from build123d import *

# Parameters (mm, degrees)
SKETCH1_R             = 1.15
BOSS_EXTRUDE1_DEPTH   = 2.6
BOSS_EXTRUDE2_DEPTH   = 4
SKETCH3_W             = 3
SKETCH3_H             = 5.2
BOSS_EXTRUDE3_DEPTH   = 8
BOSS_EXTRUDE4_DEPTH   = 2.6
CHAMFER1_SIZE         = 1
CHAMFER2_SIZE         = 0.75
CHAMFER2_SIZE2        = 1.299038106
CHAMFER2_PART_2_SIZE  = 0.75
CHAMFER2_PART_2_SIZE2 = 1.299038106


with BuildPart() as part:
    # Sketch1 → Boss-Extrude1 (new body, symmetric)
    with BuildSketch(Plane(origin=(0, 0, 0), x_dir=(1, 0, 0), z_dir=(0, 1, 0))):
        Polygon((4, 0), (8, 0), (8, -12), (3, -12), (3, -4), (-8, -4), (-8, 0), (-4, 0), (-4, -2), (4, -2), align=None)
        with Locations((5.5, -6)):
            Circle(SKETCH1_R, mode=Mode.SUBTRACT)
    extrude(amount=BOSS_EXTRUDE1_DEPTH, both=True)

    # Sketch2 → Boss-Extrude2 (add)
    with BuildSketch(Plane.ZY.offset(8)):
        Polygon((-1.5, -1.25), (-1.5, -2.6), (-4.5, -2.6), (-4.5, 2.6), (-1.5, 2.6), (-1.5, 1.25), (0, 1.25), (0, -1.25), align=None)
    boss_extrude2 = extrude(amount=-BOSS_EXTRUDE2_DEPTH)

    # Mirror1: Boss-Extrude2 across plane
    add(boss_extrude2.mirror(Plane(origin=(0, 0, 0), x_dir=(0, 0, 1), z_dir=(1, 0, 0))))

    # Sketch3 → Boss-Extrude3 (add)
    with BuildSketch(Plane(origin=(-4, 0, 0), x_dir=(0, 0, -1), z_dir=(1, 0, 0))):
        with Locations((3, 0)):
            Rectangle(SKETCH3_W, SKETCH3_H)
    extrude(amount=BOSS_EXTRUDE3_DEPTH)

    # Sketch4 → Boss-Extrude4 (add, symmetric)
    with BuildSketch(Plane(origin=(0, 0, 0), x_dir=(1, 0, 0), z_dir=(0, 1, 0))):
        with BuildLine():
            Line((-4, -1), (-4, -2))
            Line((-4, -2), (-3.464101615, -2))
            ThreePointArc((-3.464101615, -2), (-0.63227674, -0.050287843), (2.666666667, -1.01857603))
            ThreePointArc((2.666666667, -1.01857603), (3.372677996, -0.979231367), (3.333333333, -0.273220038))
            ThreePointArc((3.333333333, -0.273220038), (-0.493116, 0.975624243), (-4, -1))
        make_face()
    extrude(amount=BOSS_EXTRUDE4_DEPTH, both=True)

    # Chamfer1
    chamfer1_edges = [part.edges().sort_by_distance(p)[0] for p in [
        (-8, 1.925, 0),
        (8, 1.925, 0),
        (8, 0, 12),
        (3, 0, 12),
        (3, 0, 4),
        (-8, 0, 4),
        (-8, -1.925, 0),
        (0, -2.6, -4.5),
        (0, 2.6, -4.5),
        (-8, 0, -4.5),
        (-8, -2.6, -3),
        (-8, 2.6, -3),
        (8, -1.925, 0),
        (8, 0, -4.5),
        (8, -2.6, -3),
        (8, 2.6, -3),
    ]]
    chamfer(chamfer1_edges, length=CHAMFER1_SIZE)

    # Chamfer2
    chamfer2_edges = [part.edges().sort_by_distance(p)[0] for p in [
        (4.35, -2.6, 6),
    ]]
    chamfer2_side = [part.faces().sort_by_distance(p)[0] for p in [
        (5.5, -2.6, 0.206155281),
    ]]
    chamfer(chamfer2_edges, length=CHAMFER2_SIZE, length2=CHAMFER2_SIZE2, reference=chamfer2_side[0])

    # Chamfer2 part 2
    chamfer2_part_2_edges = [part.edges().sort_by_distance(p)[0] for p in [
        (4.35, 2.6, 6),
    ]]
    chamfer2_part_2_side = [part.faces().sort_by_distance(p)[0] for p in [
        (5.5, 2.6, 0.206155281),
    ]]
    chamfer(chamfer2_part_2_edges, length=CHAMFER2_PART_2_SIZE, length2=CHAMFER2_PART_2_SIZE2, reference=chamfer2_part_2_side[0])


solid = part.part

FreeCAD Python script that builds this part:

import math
import FreeCAD as App
import Part
import Sketcher
from FreeCAD import Vector
Q = App.Units.Quantity


def edges_at(feature, points):
    """Names of the edges that pass closest to the given points."""
    edges = feature.Shape.Edges
    near = lambda p: min(range(len(edges)), key=lambda i: edges[i].distToShape(Part.Vertex(*p))[0])
    return sorted({f"Edge{near(p) + 1}" for p in points})


def add_polygon(sketch, points):
    """Adds a closed chain of lines whose ends are joined by coincident constraints."""
    first, n = sketch.GeometryCount, len(points)
    for a, b in zip(points, points[1:] + points[:1]):
        sketch.addGeometry(Part.LineSegment(App.Vector(*a, 0), App.Vector(*b, 0)), False)
    for i in range(n):
        sketch.addConstraint(Sketcher.Constraint("Coincident", first + i, 2, first + (i + 1) % n, 1))

doc = App.newDocument("Part")
body = doc.addObject("PartDesign::Body", "Body")

# Sketch on XZ plane
sketch1 = body.newObject("Sketcher::SketchObject", "Sketch")
sketch1.AttachmentSupport = (doc.getObject("XZ_Plane"), [""])
sketch1.MapMode = "FlatFace"
add_polygon(sketch1, [(8, 0), (4, 0), (4, 2), (-4, 2), (-4, 0), (-8, 0), (-8, 4), (3, 4), (3, 12), (8, 12)])  # lines 0-9
sketch1.addGeometry(Part.Circle(Vector(5.5, 6, 0), Vector(0, 0, 1), 1.15), False)  # 10
sketch1.addConstraint([
    Sketcher.Constraint("Horizontal", 0),
    Sketcher.Constraint("Vertical", 1),
    Sketcher.Constraint("Horizontal", 2),
    Sketcher.Constraint("Vertical", 3),
    Sketcher.Constraint("Horizontal", 4),
    Sketcher.Constraint("Vertical", 5),
    Sketcher.Constraint("Horizontal", 6),
    Sketcher.Constraint("Vertical", 7),
    Sketcher.Constraint("Horizontal", 8),
    Sketcher.Constraint("Vertical", 9),
    Sketcher.Constraint("Symmetric", 0, 2, 3, 2, -1, 1),
    Sketcher.Constraint("Symmetric", 4, 2, 9, 2, -2),
    Sketcher.Constraint("Equal", 4, 5),
    Sketcher.Constraint("Equal", 2, 7),
    Sketcher.Constraint("Diameter", 10, Q("2.3 mm")),
    Sketcher.Constraint("DistanceX", 0, 2, 0, 1, Q("4 mm")),
    Sketcher.Constraint("DistanceX", 2, 2, 2, 1, Q("8 mm")),
    Sketcher.Constraint("DistanceX", 6, 1, 6, 2, Q("11 mm")),
    Sketcher.Constraint("DistanceY", 1, 1, 1, 2, Q("2 mm")),
    Sketcher.Constraint("DistanceY", -1, 1, 10, 3, Q("6 mm")),
    Sketcher.Constraint("DistanceX", -1, 1, 10, 3, Q("5.5 mm")),
])
pad1 = body.newObject("PartDesign::Pad", "Pad")
pad1.Profile = sketch1
pad1.Length = 5.2
pad1.Midplane = True

# Sketch on YZ plane
sketch2 = body.newObject("Sketcher::SketchObject", "Sketch001")
sketch2.AttachmentSupport = (doc.getObject("YZ_Plane"), [""])
sketch2.MapMode = "FlatFace"
sketch2.AttachmentOffset = App.Placement(Vector(0, 0, -8), App.Rotation())
add_polygon(sketch2, [(-2.6, -1.5), (-1.25, -1.5), (-1.25, 0), (1.25, 0), (1.25, -1.5), (2.6, -1.5), (2.6, -4.5), (-2.6, -4.5)])  # lines 0-7
sketch2.addConstraint([
    Sketcher.Constraint("Horizontal", 0),
    Sketcher.Constraint("Vertical", 1),
    Sketcher.Constraint("Horizontal", 2),
    Sketcher.Constraint("Vertical", 3),
    Sketcher.Constraint("Horizontal", 4),
    Sketcher.Constraint("Vertical", 5),
    Sketcher.Constraint("Horizontal", 6),
    Sketcher.Constraint("Vertical", 7),
    Sketcher.Constraint("Symmetric", 1, 2, 2, 2, -1, 1),
    Sketcher.Constraint("Symmetric", 4, 2, 7, 2, -2),
    Sketcher.Constraint("DistanceY", 5, 2, 5, 1, Q("3 mm")),
    Sketcher.Constraint("DistanceX", 2, 1, 2, 2, Q("2.5 mm")),
    Sketcher.Constraint("DistanceX", 6, 2, 6, 1, Q("5.2 mm")),
    Sketcher.Constraint("DistanceY", 1, 1, 1, 2, Q("1.5 mm")),
])
pad2 = body.newObject("PartDesign::Pad", "Pad001")
pad2.Profile = sketch2
pad2.Length = 4
doc.recompute()

mirrored = body.newObject("PartDesign::Mirrored", "Mirrored")
mirrored.Originals = [pad2]
mirrored.MirrorPlane = (doc.getObject("YZ_Plane"), [""])
body.Tip = mirrored

# Sketch on YZ plane
sketch3 = body.newObject("Sketcher::SketchObject", "Sketch002")
sketch3.AttachmentSupport = (doc.getObject("YZ_Plane"), [""])
sketch3.MapMode = "FlatFace"
sketch3.AttachmentOffset = App.Placement(Vector(0, 0, -4), App.Rotation())
add_polygon(sketch3, [(2.6, -1.5), (-2.6, -1.5), (-2.6, -4.5), (2.6, -4.5)])  # lines 0-3
sketch3.addConstraint([
    Sketcher.Constraint("Horizontal", 0),
    Sketcher.Constraint("Vertical", 1),
    Sketcher.Constraint("Horizontal", 2),
    Sketcher.Constraint("Vertical", 3),
    Sketcher.Constraint("DistanceY", 1, 2, 1, 1, Q("3 mm")),
    Sketcher.Constraint("DistanceX", 0, 2, 0, 1, Q("5.2 mm")),
    Sketcher.Constraint("DistanceX", 0, 2, -1, 1, Q("2.6 mm")),
    Sketcher.Constraint("DistanceY", 0, 2, -1, 1, Q("1.5 mm")),
])
pad3 = body.newObject("PartDesign::Pad", "Pad002")
pad3.Profile = sketch3
pad3.Length = 8

# Sketch on XZ plane
sketch4 = body.newObject("Sketcher::SketchObject", "Sketch003")
sketch4.AttachmentSupport = (doc.getObject("XZ_Plane"), [""])
sketch4.MapMode = "FlatFace"
sketch4.addGeometry([
    Part.LineSegment(Vector(-4, 1, 0), Vector(-4, 2, 0)),  # 0
    Part.LineSegment(Vector(-4, 2, 0), Vector(-3.464102, 2, 0)),  # 1
    Part.ArcOfCircle(Part.Circle(Vector(0, 4, 0), Vector(0, 0, 1), 4), math.radians(-150), math.radians(-48.189685)),  # 2
    Part.ArcOfCircle(Part.Circle(Vector(3, 0.645898, 0), Vector(0, 0, 1), 0.5), math.radians(-48.189685), math.radians(131.810315)),  # 3
    Part.ArcOfCircle(Part.Circle(Vector(0, 4, 0), Vector(0, 0, 1), 5), math.radians(-143.130102), math.radians(-48.189685)),  # 4
], False)
sketch4.addConstraint([
    Sketcher.Constraint("Coincident", 0, 2, 1, 1),
    Sketcher.Constraint("Coincident", 1, 2, 2, 1),
    Sketcher.Constraint("Tangent", 2, 2, 3, 2),
    Sketcher.Constraint("Tangent", 3, 1, 4, 2),
    Sketcher.Constraint("Coincident", 4, 1, 0, 1),
    Sketcher.Constraint("Vertical", 0),
    Sketcher.Constraint("Horizontal", 1),
    Sketcher.Constraint("Coincident", 4, 3, 2, 3),
    Sketcher.Constraint("PointOnObject", 2, 3, -2),
    Sketcher.Constraint("Radius", 2, Q("4 mm")),
    Sketcher.Constraint("Radius", 4, Q("5 mm")),
    Sketcher.Constraint("DistanceY", 0, 1, 0, 2, Q("1 mm")),
    Sketcher.Constraint("DistanceY", -1, 1, 2, 3, Q("4 mm")),
    Sketcher.Constraint("DistanceX", -1, 1, 3, 3, Q("3 mm")),
    Sketcher.Constraint("DistanceX", 0, 2, -1, 1, Q("4 mm")),
])
pad4 = body.newObject("PartDesign::Pad", "Pad003")
pad4.Profile = sketch4
pad4.Length = 5.2
pad4.Midplane = True
doc.recompute()

chamfer = body.newObject("PartDesign::Chamfer", "Chamfer")
chamfer.Base = (pad4, edges_at(pad4, [
    (-8, 1.925, 0),
    (8, 1.925, 0),
    (8, 0, 12),
    (3, 0, 12),
    (3, 0, 4),
    (-8, 0, 4),
    (-8, -1.925, 0),
    (0, -2.6, -4.5),
    (0, 2.6, -4.5),
    (-8, 0, -4.5),
    (-8, -2.6, -3),
    (-8, 2.6, -3),
    (8, -1.925, 0),
    (8, 0, -4.5),
    (8, -2.6, -3),
    (8, 2.6, -3),
]))
chamfer.Size = 1
doc.recompute()

chamfer2 = body.newObject("PartDesign::Chamfer", "Chamfer001")
chamfer2.Base = (chamfer, edges_at(chamfer, [(4.35, -2.6, 6)]))
chamfer2.ChamferType = "Two distances"
chamfer2.Size = 0.75
chamfer2.Size2 = 1.299038
doc.recompute()

chamfer3 = body.newObject("PartDesign::Chamfer", "Chamfer002")
chamfer3.Base = (chamfer2, edges_at(chamfer2, [(4.35, 2.6, 6)]))
chamfer3.ChamferType = "Two distances"
chamfer3.Size = 0.75
chamfer3.Size2 = 1.299038
chamfer3.FlipDirection = True

doc.recompute()
